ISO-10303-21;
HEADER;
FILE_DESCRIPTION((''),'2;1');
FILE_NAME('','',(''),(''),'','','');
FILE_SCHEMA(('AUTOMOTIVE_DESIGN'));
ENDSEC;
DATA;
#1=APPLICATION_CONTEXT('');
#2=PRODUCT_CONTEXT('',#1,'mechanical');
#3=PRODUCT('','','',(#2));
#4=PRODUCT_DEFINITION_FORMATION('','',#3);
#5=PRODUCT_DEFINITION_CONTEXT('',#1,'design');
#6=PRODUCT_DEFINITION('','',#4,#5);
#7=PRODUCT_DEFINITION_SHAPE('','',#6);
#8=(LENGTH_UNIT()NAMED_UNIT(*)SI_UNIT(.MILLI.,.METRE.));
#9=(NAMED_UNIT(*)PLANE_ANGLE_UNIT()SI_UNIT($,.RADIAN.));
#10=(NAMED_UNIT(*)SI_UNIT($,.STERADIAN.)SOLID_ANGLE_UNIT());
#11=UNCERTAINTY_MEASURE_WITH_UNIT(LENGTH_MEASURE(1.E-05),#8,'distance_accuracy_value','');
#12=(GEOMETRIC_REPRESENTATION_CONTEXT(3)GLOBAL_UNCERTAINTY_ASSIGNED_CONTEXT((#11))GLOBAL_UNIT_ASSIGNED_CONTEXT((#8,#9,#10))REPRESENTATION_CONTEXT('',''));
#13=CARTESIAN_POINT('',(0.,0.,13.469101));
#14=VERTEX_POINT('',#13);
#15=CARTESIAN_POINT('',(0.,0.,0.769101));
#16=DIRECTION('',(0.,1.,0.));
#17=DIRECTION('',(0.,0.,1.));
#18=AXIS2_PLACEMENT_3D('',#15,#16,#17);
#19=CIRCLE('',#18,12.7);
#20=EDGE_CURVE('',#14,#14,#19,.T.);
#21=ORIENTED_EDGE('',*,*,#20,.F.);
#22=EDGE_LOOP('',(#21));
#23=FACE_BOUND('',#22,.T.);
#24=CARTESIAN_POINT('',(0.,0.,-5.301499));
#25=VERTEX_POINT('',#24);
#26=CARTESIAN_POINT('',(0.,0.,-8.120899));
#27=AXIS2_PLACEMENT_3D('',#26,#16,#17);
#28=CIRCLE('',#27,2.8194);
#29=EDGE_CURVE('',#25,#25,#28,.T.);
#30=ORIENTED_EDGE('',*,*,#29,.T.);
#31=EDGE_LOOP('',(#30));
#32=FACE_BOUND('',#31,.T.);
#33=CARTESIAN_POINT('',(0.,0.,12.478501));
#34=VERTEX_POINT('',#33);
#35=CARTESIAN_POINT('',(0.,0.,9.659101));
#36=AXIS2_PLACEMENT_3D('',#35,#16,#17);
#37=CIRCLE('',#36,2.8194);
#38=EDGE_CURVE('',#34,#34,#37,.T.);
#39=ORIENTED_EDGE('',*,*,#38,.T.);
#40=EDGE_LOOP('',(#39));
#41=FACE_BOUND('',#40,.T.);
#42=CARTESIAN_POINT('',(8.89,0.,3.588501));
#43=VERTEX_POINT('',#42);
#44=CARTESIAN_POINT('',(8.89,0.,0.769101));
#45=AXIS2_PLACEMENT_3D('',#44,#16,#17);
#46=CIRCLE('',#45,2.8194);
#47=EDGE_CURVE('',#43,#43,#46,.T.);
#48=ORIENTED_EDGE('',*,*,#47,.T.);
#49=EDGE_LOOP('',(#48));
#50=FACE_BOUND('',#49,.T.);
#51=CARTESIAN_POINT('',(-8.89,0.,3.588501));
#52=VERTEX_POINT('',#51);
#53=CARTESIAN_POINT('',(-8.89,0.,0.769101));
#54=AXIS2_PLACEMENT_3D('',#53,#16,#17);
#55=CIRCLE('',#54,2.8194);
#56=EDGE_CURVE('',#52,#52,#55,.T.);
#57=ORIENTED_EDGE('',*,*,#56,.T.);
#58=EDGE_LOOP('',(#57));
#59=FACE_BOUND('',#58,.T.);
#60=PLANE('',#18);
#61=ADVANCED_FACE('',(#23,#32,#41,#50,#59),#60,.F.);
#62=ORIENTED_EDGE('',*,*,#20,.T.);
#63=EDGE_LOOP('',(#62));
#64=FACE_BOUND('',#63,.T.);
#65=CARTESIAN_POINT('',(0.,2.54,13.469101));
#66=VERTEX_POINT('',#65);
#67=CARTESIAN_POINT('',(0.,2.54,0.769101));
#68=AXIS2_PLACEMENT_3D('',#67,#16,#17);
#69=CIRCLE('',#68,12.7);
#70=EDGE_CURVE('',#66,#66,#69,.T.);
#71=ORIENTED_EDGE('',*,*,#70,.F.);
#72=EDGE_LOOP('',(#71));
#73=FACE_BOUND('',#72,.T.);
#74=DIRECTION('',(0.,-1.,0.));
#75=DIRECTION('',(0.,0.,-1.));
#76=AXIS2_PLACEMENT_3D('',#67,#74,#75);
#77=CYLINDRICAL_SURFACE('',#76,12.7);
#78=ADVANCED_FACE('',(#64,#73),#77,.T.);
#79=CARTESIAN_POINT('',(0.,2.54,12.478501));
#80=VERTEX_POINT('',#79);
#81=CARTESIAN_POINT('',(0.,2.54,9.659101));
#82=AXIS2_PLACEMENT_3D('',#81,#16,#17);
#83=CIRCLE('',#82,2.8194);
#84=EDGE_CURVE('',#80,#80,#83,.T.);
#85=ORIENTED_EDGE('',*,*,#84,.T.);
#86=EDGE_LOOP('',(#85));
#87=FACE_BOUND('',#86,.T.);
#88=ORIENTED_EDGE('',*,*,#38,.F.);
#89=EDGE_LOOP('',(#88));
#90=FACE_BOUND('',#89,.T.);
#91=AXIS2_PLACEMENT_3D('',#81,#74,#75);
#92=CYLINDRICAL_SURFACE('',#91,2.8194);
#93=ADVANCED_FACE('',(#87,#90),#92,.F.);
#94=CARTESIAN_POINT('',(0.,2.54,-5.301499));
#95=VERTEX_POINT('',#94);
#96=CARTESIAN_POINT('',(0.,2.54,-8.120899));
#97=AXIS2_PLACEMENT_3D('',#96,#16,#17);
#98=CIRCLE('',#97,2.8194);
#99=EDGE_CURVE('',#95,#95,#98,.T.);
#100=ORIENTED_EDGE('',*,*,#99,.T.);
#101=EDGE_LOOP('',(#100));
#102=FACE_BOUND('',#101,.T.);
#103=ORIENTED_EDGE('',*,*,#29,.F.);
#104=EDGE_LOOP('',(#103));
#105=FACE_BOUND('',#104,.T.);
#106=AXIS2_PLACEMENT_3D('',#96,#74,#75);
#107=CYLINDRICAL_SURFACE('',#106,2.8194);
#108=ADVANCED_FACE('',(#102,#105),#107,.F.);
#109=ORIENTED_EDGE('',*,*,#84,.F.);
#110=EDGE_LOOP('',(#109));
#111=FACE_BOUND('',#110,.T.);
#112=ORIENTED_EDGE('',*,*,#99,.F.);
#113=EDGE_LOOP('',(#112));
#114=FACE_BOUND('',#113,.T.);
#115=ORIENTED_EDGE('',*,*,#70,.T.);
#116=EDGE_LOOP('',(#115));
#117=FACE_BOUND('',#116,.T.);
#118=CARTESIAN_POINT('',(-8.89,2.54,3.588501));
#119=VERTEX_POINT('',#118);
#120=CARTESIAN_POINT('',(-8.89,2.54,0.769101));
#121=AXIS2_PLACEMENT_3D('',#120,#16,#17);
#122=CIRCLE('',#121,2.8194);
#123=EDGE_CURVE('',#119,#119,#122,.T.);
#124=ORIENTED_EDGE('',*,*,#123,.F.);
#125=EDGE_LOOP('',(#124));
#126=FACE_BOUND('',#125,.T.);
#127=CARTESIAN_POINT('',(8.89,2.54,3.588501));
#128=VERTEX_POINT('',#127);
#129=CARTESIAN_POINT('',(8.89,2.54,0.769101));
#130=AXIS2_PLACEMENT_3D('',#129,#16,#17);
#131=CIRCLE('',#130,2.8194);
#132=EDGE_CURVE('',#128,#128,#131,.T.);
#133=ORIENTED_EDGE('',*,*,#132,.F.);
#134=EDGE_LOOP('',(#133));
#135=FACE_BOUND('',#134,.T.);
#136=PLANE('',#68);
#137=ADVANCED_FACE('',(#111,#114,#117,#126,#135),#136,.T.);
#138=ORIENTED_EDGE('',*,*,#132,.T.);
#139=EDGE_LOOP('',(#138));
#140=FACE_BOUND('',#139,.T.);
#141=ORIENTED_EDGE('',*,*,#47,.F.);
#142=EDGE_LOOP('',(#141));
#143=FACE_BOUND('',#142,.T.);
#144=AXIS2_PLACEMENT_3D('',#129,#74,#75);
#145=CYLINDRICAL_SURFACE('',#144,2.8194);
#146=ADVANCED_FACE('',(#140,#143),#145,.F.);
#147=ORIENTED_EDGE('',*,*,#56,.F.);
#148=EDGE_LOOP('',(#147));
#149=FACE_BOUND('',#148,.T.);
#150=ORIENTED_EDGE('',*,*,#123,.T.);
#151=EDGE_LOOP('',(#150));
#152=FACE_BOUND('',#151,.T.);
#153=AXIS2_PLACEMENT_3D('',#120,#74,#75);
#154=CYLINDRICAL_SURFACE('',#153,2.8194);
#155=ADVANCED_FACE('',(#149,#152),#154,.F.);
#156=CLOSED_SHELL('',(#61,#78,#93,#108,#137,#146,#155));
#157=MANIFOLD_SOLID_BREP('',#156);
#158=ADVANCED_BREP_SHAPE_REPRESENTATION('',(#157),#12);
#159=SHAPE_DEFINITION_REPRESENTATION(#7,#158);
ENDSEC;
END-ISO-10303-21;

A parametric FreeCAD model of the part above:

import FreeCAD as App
import Part
import Sketcher
Q = App.Units.Quantity

doc = App.newDocument("Part")
body = doc.addObject("PartDesign::Body", "Body")

sketch1 = body.newObject("Sketcher::SketchObject", "Sketch")
sketch1.AttachmentSupport = (doc.getObject("XZ_Plane"), [""])
sketch1.MapMode = "FlatFace"
sketch1.addGeometry(Part.Circle(App.Vector(0, 0.8, 0), App.Vector(0, 0, 1), 12.7), False)
sketch1.addGeometry(Part.Circle(App.Vector(0, -8.1, 0), App.Vector(0, 0, 1), 2.8), False)
sketch1.addGeometry(Part.Circle(App.Vector(-8.9, 0.8, 0), App.Vector(0, 0, 1), 2.8), False)
sketch1.addGeometry(Part.Circle(App.Vector(0, 9.7, 0), App.Vector(0, 0, 1), 2.8), False)
sketch1.addGeometry(Part.Circle(App.Vector(8.9, 0.8, 0), App.Vector(0, 0, 1), 2.8), False)
sketch1.addConstraint(Sketcher.Constraint("Equal", 1, 2))
sketch1.addConstraint(Sketcher.Constraint("Equal", 2, 3))
sketch1.addConstraint(Sketcher.Constraint("Equal", 3, 4))
sketch1.addConstraint(Sketcher.Constraint("Symmetric", 2, 3, 4, 3, -2))
sketch1.addConstraint(Sketcher.Constraint("PointOnObject", 0, 3, -2))
sketch1.addConstraint(Sketcher.Constraint("PointOnObject", 1, 3, -2))
sketch1.addConstraint(Sketcher.Constraint("PointOnObject", 3, 3, -2))
sketch1.addConstraint(Sketcher.Constraint("Horizontal", 0, 3, 2, 3))
sketch1.addConstraint(Sketcher.Constraint("Diameter", 0, Q("1 in")))
sketch1.addConstraint(Sketcher.Constraint("Diameter", 1, Q("0.222 in")))
sketch1.addConstraint(Sketcher.Constraint("DistanceY", 1, 3, 3, 3, Q("0.7 in")))
sketch1.addConstraint(Sketcher.Constraint("DistanceX", 2, 3, 4, 3, Q("0.7 in")))
sketch1.addConstraint(Sketcher.Constraint("DistanceY", 1, 3, 0, 3, Q("0.35 in")))
sketch1.addConstraint(Sketcher.Constraint("DistanceY", -1, 1, 0, 3, 0.769101))
pad1 = body.newObject("PartDesign::Pad", "Pad")
pad1.Profile = sketch1
pad1.Length = Q("0.1 in")
pad1.Reversed = True

doc.recompute()
